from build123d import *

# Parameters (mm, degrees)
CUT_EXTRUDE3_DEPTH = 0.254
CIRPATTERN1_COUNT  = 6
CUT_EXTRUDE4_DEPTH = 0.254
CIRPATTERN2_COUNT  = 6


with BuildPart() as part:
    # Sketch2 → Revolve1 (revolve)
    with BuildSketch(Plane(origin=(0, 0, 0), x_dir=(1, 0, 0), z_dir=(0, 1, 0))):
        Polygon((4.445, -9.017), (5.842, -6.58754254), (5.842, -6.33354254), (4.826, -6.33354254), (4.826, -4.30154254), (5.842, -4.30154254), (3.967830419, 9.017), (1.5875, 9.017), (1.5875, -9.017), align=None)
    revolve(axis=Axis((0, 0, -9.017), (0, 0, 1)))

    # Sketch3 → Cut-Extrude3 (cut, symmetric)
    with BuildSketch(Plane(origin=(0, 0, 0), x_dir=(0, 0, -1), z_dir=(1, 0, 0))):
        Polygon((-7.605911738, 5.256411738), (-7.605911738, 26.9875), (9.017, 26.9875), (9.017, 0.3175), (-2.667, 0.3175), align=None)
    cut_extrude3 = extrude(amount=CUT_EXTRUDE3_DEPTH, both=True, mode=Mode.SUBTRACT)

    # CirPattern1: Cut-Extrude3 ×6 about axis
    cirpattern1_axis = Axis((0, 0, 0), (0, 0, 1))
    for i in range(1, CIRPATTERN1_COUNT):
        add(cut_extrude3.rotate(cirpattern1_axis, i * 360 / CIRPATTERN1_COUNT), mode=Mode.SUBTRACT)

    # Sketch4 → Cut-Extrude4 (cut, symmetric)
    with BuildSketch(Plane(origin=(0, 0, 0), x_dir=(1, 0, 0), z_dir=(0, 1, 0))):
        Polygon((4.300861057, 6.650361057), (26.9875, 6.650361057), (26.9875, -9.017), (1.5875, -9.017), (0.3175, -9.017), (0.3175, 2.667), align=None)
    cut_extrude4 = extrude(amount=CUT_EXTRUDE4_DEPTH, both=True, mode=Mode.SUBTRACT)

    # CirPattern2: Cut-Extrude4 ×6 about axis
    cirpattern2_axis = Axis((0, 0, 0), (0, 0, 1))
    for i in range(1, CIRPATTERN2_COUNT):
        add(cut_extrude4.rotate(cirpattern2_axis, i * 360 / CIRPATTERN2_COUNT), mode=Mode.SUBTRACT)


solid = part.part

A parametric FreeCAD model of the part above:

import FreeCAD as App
import Part
import Sketcher
from FreeCAD import Vector
Q = App.Units.Quantity


def add_polygon(sketch, points):
    """Adds a closed chain of lines whose ends are joined by coincident constraints."""
    first, n = sketch.GeometryCount, len(points)
    for a, b in zip(points, points[1:] + points[:1]):
        sketch.addGeometry(Part.LineSegment(App.Vector(*a, 0), App.Vector(*b, 0)), False)
    for i in range(n):
        sketch.addConstraint(Sketcher.Constraint("Coincident", first + i, 2, first + (i + 1) % n, 1))

doc = App.newDocument("Part")
body = doc.addObject("PartDesign::Body", "Body")

# Sketch on XZ plane
sketch1 = doc.addObject("Sketcher::SketchObject", "Sketch")
body.addObject(sketch1)
sketch1.AttachmentSupport = (doc.XZ_Plane, [""])
sketch1.MapMode = "FlatFace"
add_polygon(sketch1, [(4.45, 9.02), (5.84, 6.59), (5.84, 6.33), (4.83, 6.33), (4.83, 4.3), (5.84, 4.3), (3.97, -9.02), (1.59, -9.02), (1.59, 9.02)])  # lines 0-8
sketch1.addConstraint(Sketcher.Constraint("Vertical", 1))
sketch1.addConstraint(Sketcher.Constraint("Horizontal", 2))
sketch1.addConstraint(Sketcher.Constraint("Vertical", 3))
sketch1.addConstraint(Sketcher.Constraint("Horizontal", 4))
sketch1.addConstraint(Sketcher.Constraint("Horizontal", 6))
sketch1.addConstraint(Sketcher.Constraint("Vertical", 7))
sketch1.addConstraint(Sketcher.Constraint("Horizontal", 8))
sketch1.addConstraint(Sketcher.Constraint("Vertical", 1, 2, 4, 2))
sketch1.addConstraint(Sketcher.Constraint("DistanceX", 2, 2, 2, 1, Q("0.04 in")))
sketch1.addConstraint(Sketcher.Constraint("DistanceY", 1, 2, 1, 1, Q("0.01 in")))
sketch1.addConstraint(Sketcher.Constraint("DistanceY", 3, 2, 3, 1, Q("0.08 in")))
sketch1.addConstraint(Sketcher.Constraint("DistanceY", 7, 1, 7, 2, Q("0.71 in")))
sketch1.addConstraint(Sketcher.Constraint("Angle", 0, Q("-60.1 deg")))
sketch1.addConstraint(Sketcher.Constraint("DistanceX", -1, 1, 0, 2, Q("0.23 in")))
sketch1.addConstraint(Sketcher.Constraint("Angle", 5, Q("-98.01 deg")))
sketch1.addConstraint(Sketcher.Constraint("DistanceX", 8, 1, 8, 2, Q("0.1125 in")))
sketch1.addConstraint(Sketcher.Constraint("DistanceY", 5, 2, -1, 1, Q("0.355 in")))
sketch1.addConstraint(Sketcher.Constraint("DistanceX", -1, 1, 6, 2, Q("0.0625 in")))
revolution = doc.addObject("PartDesign::Revolution", "Revolution")
body.addObject(revolution)
revolution.Profile = sketch1
revolution.ReferenceAxis = (sketch1, ["V_Axis"])
revolution.Angle = 360

# Sketch on YZ plane
sketch2 = doc.addObject("Sketcher::SketchObject", "Sketch001")
body.addObject(sketch2)
sketch2.AttachmentSupport = (doc.YZ_Plane, [""])
sketch2.MapMode = "FlatFace"
add_polygon(sketch2, [(27, 8), (5, 8), (0, 3), (0, -9), (27, -9)])  # lines 0-4
sketch2.addConstraint(Sketcher.Constraint("Horizontal", 0))
sketch2.addConstraint(Sketcher.Constraint("Vertical", 2))
sketch2.addConstraint(Sketcher.Constraint("Horizontal", 3))
sketch2.addConstraint(Sketcher.Constraint("Vertical", 4))
sketch2.addConstraint(Sketcher.Constraint("Angle", 1, Q("-135 deg")))
sketch2.addConstraint(Sketcher.Constraint("DistanceX", 3, 1, 3, 2, Q("1.05 in")))
sketch2.addConstraint(Sketcher.Constraint("DistanceY", 2, 2, 2, 1, Q("0.46 in")))
sketch2.addConstraint(Sketcher.Constraint("DistanceY", -1, 1, 1, 2, Q("0.105 in")))
sketch2.addConstraint(Sketcher.Constraint("DistanceX", -1, 1, 3, 2, Q("1.0625 in")))
sketch2.addConstraint(Sketcher.Constraint("DistanceX", 0, 2, 0, 1, Q("21.731088 mm")))
pocket1 = doc.addObject("PartDesign::Pocket", "Pocket")
body.addObject(pocket1)
pocket1.Profile = sketch2
pocket1.Length = Q("0.02 in")
pocket1.Midplane = True
doc.recompute()

polarpattern = doc.addObject("PartDesign::PolarPattern", "PolarPattern")
body.addObject(polarpattern)
polarpattern.Originals = [pocket1]
polarpattern.Axis = (doc.Z_Axis, [""])
polarpattern.Angle = 360
polarpattern.Occurrences = 6
body.Tip = polarpattern

# Sketch on XZ plane
sketch3 = doc.addObject("Sketcher::SketchObject", "Sketch002")
body.addObject(sketch3)
sketch3.AttachmentSupport = (doc.XZ_Plane, [""])
sketch3.MapMode = "FlatFace"
add_polygon(sketch3, [(27, -7), (4, -7), (0, -3), (0, 9), (27, 9)])  # lines 0-4
sketch3.addConstraint(Sketcher.Constraint("Horizontal", 0))
sketch3.addConstraint(Sketcher.Constraint("Vertical", 2))
sketch3.addConstraint(Sketcher.Constraint("Horizontal", 3))
sketch3.addConstraint(Sketcher.Constraint("Vertical", 4))
sketch3.addConstraint(Sketcher.Constraint("Angle", 1, Q("135 deg")))
sketch3.addConstraint(Sketcher.Constraint("DistanceX", 3, 1, 3, 2, Q("1.05 in")))
sketch3.addConstraint(Sketcher.Constraint("DistanceY", 2, 1, 2, 2, Q("0.46 in")))
sketch3.addConstraint(Sketcher.Constraint("DistanceY", 1, 2, -1, 1, Q("0.105 in")))
sketch3.addConstraint(Sketcher.Constraint("DistanceX", -1, 1, 3, 2, Q("1.0625 in")))
sketch3.addConstraint(Sketcher.Constraint("DistanceX", 0, 2, 0, 1, Q("22.686639 mm")))
pocket2 = doc.addObject("PartDesign::Pocket", "Pocket001")
body.addObject(pocket2)
pocket2.Profile = sketch3
pocket2.Length = Q("0.02 in")
pocket2.Midplane = True
doc.recompute()

polarpattern2 = doc.addObject("PartDesign::PolarPattern", "PolarPattern001")
body.addObject(polarpattern2)
polarpattern2.Originals = [pocket2]
polarpattern2.Axis = (doc.Z_Axis, [""])
polarpattern2.Angle = 360
polarpattern2.Occurrences = 6
body.Tip = polarpattern2

doc.recompute()
